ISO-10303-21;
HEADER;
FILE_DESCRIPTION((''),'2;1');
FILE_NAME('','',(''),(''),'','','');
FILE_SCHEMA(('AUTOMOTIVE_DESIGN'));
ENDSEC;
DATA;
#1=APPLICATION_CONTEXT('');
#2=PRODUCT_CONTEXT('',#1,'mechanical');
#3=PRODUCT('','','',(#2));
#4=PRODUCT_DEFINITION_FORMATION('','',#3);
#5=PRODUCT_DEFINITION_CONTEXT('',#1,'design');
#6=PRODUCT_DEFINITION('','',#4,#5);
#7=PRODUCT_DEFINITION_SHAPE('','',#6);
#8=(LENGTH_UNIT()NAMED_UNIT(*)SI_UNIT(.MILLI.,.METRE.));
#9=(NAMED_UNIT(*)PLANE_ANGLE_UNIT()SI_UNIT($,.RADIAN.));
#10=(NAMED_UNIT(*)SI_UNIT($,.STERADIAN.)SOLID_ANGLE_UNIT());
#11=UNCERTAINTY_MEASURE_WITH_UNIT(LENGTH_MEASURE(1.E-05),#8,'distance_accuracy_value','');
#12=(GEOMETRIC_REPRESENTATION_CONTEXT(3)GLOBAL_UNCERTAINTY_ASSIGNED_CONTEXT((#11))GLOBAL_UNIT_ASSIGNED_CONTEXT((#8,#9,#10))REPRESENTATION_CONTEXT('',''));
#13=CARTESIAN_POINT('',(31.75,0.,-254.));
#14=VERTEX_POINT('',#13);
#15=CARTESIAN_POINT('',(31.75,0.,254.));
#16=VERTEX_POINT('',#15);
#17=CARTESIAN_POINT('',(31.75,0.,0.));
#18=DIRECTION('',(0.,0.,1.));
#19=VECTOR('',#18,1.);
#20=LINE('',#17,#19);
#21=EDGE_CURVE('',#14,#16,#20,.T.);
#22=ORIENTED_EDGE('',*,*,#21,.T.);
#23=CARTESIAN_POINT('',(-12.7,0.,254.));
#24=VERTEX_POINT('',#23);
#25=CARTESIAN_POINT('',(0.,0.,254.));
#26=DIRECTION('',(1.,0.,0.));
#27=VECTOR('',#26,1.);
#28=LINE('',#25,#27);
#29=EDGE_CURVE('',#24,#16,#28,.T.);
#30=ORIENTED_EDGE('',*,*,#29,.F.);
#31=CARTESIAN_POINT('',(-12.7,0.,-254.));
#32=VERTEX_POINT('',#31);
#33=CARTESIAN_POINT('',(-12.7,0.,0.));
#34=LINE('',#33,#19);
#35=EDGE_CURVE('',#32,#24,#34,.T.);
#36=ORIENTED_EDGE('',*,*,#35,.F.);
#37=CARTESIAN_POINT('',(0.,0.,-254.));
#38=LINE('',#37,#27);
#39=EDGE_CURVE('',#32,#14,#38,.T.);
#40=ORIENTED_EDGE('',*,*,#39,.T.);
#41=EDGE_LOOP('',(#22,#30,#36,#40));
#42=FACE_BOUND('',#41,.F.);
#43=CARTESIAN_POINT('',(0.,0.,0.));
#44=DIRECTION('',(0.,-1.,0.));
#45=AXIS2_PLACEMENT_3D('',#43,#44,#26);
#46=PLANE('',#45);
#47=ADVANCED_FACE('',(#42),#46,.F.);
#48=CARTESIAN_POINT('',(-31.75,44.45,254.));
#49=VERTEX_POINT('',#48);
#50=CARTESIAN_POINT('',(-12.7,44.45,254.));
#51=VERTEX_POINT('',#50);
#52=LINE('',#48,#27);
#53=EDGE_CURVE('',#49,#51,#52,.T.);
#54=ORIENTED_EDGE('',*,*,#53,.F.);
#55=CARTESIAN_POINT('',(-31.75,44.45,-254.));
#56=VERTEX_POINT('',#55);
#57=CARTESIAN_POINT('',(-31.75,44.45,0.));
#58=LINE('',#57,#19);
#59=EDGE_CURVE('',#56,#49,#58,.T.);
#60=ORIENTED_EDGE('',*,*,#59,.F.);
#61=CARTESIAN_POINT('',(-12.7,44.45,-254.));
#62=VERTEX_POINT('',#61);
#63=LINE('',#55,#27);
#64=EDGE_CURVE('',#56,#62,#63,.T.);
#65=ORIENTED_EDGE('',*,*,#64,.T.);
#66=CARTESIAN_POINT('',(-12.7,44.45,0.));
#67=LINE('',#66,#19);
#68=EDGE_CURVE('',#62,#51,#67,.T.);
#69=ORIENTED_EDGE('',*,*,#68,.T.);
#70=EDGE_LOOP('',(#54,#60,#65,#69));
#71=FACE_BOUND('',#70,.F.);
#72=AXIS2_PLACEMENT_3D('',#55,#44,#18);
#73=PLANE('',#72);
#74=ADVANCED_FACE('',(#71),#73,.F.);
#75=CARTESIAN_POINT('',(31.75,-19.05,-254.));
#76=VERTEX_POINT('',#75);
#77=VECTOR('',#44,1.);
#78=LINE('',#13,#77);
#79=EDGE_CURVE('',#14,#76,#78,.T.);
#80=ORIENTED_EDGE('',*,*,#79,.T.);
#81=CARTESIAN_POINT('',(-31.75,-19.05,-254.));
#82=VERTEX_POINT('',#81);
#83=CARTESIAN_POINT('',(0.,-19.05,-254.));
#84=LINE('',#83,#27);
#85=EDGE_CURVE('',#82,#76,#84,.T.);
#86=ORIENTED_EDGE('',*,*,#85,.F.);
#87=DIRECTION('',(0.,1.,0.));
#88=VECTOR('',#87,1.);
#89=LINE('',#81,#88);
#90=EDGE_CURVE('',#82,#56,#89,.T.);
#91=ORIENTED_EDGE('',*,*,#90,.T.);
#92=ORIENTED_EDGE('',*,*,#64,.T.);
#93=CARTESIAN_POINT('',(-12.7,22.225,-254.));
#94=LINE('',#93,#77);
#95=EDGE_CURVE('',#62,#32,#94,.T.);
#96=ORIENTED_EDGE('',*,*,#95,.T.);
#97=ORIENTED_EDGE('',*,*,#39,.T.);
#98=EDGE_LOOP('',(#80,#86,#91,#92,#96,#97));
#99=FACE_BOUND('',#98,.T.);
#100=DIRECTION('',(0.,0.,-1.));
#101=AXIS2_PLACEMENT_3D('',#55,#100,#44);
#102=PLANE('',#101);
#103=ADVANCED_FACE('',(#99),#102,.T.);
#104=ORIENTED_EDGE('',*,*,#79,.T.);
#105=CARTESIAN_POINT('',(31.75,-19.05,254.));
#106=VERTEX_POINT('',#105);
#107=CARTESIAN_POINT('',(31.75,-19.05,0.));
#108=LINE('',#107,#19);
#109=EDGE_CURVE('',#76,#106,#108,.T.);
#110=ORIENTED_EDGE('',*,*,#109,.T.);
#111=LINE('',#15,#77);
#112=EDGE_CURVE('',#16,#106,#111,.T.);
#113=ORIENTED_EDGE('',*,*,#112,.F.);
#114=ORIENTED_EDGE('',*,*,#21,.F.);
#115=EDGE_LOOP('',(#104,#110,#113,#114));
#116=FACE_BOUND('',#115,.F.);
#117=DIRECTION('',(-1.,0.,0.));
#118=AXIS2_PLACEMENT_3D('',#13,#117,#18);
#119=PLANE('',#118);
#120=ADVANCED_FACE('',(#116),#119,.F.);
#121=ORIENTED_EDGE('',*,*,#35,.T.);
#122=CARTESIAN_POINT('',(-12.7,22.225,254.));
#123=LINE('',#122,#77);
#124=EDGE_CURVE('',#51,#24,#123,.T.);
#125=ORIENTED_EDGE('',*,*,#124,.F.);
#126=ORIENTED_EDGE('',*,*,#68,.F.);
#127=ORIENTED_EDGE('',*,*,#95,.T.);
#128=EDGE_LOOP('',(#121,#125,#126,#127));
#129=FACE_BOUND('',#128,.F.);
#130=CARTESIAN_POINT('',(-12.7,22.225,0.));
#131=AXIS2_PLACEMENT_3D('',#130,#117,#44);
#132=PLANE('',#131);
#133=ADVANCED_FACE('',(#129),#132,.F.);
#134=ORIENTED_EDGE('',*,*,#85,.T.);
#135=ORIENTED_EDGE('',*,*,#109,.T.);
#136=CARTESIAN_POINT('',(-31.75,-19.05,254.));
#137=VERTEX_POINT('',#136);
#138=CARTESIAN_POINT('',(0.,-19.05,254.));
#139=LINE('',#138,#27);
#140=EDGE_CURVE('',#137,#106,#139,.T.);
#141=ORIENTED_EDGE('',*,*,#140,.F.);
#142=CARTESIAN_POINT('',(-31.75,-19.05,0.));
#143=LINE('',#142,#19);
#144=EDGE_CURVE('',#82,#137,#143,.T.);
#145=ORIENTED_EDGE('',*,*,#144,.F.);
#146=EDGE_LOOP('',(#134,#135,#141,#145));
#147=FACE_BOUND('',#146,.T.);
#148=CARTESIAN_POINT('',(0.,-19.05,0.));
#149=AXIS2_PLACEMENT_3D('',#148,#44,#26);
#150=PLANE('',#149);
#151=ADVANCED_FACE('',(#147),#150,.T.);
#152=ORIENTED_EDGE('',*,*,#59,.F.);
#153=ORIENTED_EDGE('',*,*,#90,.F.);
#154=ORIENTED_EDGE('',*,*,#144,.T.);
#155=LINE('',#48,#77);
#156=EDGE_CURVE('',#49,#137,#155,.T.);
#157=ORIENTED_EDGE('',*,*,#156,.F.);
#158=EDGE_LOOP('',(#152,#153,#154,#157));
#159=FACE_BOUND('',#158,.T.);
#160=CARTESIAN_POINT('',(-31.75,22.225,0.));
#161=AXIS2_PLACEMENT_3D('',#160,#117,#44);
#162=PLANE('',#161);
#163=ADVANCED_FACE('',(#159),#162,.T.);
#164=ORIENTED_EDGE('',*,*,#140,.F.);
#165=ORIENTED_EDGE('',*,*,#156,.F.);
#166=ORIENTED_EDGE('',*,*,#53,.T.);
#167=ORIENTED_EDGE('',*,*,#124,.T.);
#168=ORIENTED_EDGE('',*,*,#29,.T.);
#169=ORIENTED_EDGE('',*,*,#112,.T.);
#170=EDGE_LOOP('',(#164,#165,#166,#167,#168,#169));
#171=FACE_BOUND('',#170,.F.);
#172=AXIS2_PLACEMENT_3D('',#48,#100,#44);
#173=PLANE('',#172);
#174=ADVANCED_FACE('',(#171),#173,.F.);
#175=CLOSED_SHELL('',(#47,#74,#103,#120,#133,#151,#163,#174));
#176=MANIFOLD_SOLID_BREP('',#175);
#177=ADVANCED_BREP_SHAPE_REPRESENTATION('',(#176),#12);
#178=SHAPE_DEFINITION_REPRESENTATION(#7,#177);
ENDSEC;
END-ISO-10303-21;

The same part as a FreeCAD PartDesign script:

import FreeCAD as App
import Part
import Sketcher
from FreeCAD import Vector
Q = App.Units.Quantity


def add_polygon(sketch, points):
    """Adds a closed chain of lines whose ends are joined by coincident constraints."""
    first, n = sketch.GeometryCount, len(points)
    for a, b in zip(points, points[1:] + points[:1]):
        sketch.addGeometry(Part.LineSegment(App.Vector(*a, 0), App.Vector(*b, 0)), False)
    for i in range(n):
        sketch.addConstraint(Sketcher.Constraint("Coincident", first + i, 2, first + (i + 1) % n, 1))

doc = App.newDocument("Part")
body = doc.addObject("PartDesign::Body", "Body")

sketch1 = body.newObject("Sketcher::SketchObject", "Sketch")
sketch1.AttachmentSupport = (doc.getObject("XZ_Plane"), [""])
sketch1.MapMode = "FlatFace"
add_polygon(sketch1, [(-31.75, 254), (-31.75, -254), (31.75, -254), (31.75, 254)])
sketch1.addConstraint([
    Sketcher.Constraint("Vertical", 0),
    Sketcher.Constraint("Horizontal", 1),
    Sketcher.Constraint("Vertical", 2),
    Sketcher.Constraint("Horizontal", 3),
    Sketcher.Constraint("Symmetric", 0, 2, 2, 2, -1, 1),
    Sketcher.Constraint("DistanceY", 0, 2, 0, 1, Q("20 in")),
    Sketcher.Constraint("DistanceX", 1, 1, 1, 2, Q("2.5 in")),
])
pad1 = body.newObject("PartDesign::Pad", "Pad")
pad1.Profile = sketch1
pad1.Length = Q("0.75 in")

sketch2 = body.newObject("Sketcher::SketchObject", "Sketch001")
sketch2.AttachmentSupport = (doc.getObject("YZ_Plane"), [""])
sketch2.MapMode = "FlatFace"
sketch2.AttachmentOffset = App.Placement(Vector(0, 0, -1.25 * 25.4), App.Rotation())
add_polygon(sketch2, [(44.45, 254), (44.45, -254), (0, -254), (0, 254)])
sketch2.addConstraint([
    Sketcher.Constraint("Vertical", 0),
    Sketcher.Constraint("Horizontal", 1),
    Sketcher.Constraint("Vertical", 2),
    Sketcher.Constraint("Horizontal", 3),
    Sketcher.Constraint("Symmetric", 1, 2, 2, 2, -1, 1),
    Sketcher.Constraint("DistanceY", 0, 2, 0, 1, Q("20 in")),
    Sketcher.Constraint("DistanceX", 1, 2, 1, 1, Q("1.75 in")),
])
pad2 = body.newObject("PartDesign::Pad", "Pad001")
pad2.Profile = sketch2
pad2.Length = Q("0.75 in")

doc.recompute()
